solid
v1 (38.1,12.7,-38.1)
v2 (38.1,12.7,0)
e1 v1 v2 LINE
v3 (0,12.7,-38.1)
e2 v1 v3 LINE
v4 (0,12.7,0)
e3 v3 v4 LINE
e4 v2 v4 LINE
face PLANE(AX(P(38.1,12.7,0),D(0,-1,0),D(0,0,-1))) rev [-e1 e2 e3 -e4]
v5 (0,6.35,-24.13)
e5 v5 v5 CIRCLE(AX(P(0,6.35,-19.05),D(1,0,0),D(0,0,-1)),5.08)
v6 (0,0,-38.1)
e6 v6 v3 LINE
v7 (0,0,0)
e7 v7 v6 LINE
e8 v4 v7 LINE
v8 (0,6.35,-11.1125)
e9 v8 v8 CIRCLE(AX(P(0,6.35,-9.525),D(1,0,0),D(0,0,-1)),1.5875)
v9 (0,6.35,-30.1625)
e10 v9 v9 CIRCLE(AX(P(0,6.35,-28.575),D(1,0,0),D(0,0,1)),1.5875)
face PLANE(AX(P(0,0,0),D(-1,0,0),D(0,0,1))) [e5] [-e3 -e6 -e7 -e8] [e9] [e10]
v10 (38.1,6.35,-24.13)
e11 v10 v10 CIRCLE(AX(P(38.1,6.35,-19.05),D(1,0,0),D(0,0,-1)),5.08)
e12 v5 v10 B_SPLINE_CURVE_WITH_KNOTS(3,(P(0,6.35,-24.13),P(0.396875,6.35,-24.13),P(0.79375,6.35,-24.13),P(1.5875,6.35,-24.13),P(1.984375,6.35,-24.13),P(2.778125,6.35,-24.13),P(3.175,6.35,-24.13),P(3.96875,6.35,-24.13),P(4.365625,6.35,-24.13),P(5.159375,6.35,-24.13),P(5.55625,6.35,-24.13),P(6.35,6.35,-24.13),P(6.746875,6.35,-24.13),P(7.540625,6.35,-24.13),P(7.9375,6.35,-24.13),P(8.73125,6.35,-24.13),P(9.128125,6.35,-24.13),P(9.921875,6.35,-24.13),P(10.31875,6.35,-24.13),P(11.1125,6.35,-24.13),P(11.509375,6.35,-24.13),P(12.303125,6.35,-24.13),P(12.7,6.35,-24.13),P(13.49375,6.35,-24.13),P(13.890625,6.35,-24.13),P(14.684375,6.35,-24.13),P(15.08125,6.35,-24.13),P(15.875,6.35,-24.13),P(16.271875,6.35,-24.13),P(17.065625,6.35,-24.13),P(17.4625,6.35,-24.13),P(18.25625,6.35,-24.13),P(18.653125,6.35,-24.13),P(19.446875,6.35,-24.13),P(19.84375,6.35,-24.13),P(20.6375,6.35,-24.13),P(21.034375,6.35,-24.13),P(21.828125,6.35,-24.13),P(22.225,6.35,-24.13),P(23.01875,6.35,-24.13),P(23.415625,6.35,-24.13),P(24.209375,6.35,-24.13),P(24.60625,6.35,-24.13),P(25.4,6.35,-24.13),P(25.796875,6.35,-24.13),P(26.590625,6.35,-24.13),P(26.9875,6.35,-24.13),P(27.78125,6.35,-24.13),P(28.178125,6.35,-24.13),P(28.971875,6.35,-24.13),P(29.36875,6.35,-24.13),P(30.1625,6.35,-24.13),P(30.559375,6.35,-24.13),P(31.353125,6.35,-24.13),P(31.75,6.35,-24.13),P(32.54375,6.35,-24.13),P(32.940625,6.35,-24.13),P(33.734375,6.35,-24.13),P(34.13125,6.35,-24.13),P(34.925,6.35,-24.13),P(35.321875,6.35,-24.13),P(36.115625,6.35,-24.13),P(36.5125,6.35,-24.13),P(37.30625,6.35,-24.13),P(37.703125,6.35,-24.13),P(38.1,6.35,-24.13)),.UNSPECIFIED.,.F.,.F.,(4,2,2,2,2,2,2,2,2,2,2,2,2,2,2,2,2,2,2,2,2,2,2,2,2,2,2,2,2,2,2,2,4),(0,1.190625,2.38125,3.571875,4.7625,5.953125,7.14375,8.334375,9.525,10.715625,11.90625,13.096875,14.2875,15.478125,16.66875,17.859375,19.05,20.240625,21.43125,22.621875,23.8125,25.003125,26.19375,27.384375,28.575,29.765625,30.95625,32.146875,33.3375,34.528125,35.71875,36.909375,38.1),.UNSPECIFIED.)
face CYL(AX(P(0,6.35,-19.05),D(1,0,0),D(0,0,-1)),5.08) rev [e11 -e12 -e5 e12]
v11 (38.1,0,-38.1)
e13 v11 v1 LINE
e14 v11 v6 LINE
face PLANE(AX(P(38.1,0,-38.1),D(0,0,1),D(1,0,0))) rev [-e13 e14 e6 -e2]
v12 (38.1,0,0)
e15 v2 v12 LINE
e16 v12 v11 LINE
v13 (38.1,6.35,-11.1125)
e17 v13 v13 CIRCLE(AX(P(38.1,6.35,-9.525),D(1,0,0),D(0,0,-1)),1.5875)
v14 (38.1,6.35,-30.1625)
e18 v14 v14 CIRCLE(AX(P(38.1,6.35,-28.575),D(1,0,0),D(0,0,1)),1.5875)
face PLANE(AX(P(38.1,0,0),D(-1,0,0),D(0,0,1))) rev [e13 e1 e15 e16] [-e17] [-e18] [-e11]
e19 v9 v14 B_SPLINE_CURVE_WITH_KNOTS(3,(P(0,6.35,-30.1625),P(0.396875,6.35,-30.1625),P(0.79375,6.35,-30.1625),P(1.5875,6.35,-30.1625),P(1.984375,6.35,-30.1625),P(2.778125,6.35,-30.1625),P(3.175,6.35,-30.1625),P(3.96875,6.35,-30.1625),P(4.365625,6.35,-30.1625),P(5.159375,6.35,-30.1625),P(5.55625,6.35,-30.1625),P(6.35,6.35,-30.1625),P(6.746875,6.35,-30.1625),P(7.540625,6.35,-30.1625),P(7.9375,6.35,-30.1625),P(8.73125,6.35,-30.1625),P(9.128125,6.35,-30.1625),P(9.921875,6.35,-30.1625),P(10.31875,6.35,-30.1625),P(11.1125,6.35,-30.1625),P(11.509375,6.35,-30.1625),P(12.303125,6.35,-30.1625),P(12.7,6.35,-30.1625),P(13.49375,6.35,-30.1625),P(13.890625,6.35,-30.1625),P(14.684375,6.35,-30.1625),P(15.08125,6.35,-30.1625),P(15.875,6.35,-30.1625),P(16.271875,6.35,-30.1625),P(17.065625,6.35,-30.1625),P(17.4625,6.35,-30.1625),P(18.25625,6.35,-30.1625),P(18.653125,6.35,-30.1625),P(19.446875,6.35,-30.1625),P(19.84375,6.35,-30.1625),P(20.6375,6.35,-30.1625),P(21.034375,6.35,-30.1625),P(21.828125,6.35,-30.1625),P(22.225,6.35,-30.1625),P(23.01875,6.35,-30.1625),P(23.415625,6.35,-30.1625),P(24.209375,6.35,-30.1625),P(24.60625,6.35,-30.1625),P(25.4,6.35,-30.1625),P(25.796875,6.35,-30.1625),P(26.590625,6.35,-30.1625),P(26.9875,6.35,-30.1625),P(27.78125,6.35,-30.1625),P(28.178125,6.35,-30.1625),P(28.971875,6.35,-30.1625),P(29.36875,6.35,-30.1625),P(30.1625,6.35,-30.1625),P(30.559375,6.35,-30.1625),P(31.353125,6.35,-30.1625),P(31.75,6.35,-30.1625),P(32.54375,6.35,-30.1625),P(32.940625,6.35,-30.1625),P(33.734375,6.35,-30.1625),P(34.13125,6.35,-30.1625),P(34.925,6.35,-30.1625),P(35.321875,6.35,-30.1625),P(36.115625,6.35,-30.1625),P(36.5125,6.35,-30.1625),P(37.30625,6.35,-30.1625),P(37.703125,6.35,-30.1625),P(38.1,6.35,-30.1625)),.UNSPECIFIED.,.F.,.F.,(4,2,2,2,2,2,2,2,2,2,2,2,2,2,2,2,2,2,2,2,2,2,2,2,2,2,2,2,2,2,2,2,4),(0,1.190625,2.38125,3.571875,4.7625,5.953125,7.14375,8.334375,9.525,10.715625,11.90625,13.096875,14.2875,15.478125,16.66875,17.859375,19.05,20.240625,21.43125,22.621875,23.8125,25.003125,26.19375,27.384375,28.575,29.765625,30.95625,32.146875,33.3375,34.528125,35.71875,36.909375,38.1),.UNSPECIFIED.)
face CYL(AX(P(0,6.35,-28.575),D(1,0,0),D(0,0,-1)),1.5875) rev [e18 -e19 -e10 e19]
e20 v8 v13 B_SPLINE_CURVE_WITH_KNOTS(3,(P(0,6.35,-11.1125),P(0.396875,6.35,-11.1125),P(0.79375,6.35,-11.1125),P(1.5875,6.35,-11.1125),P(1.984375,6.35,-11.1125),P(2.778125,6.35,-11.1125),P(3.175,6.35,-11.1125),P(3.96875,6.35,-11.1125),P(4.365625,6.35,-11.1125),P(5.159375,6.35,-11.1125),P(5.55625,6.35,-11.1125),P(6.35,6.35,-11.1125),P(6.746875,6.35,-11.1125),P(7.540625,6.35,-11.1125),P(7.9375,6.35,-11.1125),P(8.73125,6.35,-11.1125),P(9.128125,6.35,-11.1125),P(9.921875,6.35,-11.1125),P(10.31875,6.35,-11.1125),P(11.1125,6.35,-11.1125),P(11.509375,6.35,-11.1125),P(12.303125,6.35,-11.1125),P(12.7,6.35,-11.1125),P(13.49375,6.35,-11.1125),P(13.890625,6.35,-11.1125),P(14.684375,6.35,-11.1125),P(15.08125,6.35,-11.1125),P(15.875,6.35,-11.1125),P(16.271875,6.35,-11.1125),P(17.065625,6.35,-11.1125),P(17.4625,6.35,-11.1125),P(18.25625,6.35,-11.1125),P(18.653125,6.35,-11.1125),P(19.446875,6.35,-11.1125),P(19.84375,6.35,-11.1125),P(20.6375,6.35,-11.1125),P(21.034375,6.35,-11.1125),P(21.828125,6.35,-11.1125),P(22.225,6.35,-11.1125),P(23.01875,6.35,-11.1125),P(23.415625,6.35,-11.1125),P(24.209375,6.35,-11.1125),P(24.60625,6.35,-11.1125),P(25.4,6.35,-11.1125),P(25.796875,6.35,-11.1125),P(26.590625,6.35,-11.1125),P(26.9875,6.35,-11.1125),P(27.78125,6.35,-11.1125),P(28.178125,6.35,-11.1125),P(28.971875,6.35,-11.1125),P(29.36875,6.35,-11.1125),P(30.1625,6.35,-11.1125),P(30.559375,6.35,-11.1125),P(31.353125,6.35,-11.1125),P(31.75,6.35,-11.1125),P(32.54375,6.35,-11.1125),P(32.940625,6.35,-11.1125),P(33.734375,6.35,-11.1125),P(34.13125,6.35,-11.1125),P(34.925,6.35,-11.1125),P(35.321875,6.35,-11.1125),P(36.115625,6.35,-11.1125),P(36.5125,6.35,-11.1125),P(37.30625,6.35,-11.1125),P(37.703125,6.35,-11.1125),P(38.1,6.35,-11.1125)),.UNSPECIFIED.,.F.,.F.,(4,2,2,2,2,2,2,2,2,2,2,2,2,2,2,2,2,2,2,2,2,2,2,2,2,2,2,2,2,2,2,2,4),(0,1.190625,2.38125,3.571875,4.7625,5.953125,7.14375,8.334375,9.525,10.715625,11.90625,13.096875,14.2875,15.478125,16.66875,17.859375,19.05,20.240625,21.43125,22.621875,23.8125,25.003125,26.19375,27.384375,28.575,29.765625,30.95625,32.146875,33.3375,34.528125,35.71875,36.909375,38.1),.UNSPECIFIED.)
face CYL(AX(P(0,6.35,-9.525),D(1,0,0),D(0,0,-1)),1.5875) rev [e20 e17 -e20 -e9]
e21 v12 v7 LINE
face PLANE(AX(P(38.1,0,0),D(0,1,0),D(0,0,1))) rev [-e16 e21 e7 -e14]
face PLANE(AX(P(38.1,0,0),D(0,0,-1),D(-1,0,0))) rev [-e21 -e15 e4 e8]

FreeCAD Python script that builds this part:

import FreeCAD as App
import Part
import Sketcher
Q = App.Units.Quantity

doc = App.newDocument("Part")
body = doc.addObject("PartDesign::Body", "Body")

# Sketch on YZ plane
sketch1 = body.newObject("Sketcher::SketchObject", "Sketch")
sketch1.AttachmentSupport = (doc.getObject("YZ_Plane"), [""])
sketch1.MapMode = "FlatFace"
sketch1.addGeometry(Part.LineSegment(App.Vector(13, 0, 0), App.Vector(0, 0, 0)), False)
sketch1.addGeometry(Part.LineSegment(App.Vector(0, 0, 0), App.Vector(0, -38, 0)), False)
sketch1.addGeometry(Part.LineSegment(App.Vector(0, -38, 0), App.Vector(13, -38, 0)), False)
sketch1.addGeometry(Part.LineSegment(App.Vector(13, -38, 0), App.Vector(13, 0, 0)), False)
sketch1.addConstraint(Sketcher.Constraint("Coincident", 0, 2, 1, 1))
sketch1.addConstraint(Sketcher.Constraint("Coincident", 1, 2, 2, 1))
sketch1.addConstraint(Sketcher.Constraint("Coincident", 2, 2, 3, 1))
sketch1.addConstraint(Sketcher.Constraint("Coincident", 3, 2, 0, 1))
sketch1.addConstraint(Sketcher.Constraint("Horizontal", 0))
sketch1.addConstraint(Sketcher.Constraint("Vertical", 1))
sketch1.addConstraint(Sketcher.Constraint("Horizontal", 2))
sketch1.addConstraint(Sketcher.Constraint("Vertical", 3))
sketch1.addConstraint(Sketcher.Constraint("Coincident", 0, 2, -1, 1))
sketch1.addConstraint(Sketcher.Constraint("DistanceX", 0, 2, 0, 1, Q("0.5 in")))
sketch1.addConstraint(Sketcher.Constraint("DistanceY", 1, 2, 1, 1, Q("1.5 in")))
pad1 = body.newObject("PartDesign::Pad", "Pad")
pad1.Profile = sketch1
pad1.Length = Q("1.5 in")

# Sketch on YZ plane
sketch2 = body.newObject("Sketcher::SketchObject", "Sketch001")
sketch2.AttachmentSupport = (doc.getObject("YZ_Plane"), [""])
sketch2.MapMode = "FlatFace"
sketch2.AttachmentOffset = App.Placement(App.Vector(0, 0, 1.5 * 25.4), App.Rotation())
sketch2.addGeometry(Part.Circle(App.Vector(6.3, -19.1, 0), App.Vector(0, 0, 1), 5.1), False)
sketch2.addGeometry(Part.Circle(App.Vector(6.3, -9.5, 0), App.Vector(0, 0, 1), 1.6), False)
sketch2.addGeometry(Part.Circle(App.Vector(6.3, -28.6, 0), App.Vector(0, 0, 1), 1.6), False)
sketch2.addConstraint(Sketcher.Constraint("Equal", 1, 2))
sketch2.addConstraint(Sketcher.Constraint("Vertical", 0, 3, 1, 3))
sketch2.addConstraint(Sketcher.Constraint("Vertical", 1, 3, 2, 3))
sketch2.addConstraint(Sketcher.Constraint("Diameter", 0, Q("0.4 in")))
sketch2.addConstraint(Sketcher.Constraint("Diameter", 1, Q("0.125 in")))
sketch2.addConstraint(Sketcher.Constraint("DistanceX", -1, 1, 0, 3, Q("0.25 in")))
sketch2.addConstraint(Sketcher.Constraint("DistanceY", 0, 3, -1, 1, Q("0.75 in")))
sketch2.addConstraint(Sketcher.Constraint("DistanceY", 2, 3, 1, 3, Q("0.75 in")))
sketch2.addConstraint(Sketcher.Constraint("DistanceY", 1, 3, -1, 1, Q("0.375 in")))
pocket1 = body.newObject("PartDesign::Pocket", "Pocket")
pocket1.Profile = sketch2
pocket1.Type = "ThroughAll"

doc.recompute()
